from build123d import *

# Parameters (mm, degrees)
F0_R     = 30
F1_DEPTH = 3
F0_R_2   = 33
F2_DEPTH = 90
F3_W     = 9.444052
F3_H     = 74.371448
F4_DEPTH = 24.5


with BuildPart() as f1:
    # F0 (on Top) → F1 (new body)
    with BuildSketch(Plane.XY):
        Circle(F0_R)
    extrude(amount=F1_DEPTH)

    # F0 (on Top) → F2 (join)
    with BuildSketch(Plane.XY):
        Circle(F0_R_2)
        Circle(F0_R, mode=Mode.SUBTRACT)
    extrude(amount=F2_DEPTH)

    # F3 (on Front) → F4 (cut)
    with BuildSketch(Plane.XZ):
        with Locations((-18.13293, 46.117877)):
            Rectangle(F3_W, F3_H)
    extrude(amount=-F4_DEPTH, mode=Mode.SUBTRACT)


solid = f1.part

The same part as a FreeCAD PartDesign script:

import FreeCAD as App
import Part
import Sketcher

V = App.Vector
Q = App.Units.Quantity

doc = App.newDocument("Part")
params = doc.addObject("Spreadsheet::Sheet", "Params")
for row, (alias, value) in enumerate([
    ("sketch1_diameter", "60 mm"),
    ("pad1_length", "3 mm"),
    ("sketch2_diameter", "66 mm"),
    ("sketch2_diameter2", "60 mm"),
    ("pad2_length", "90 mm"),
    ("pocket1_length", "24.5 mm"),
], start=1):
    params.set(f"A{row}", alias)
    params.set(f"B{row}", "=" + value)
    params.setAlias(f"B{row}", alias)

body = doc.addObject("PartDesign::Body", "Body")

# Sketch on XY plane
sketch1 = body.newObject("Sketcher::SketchObject", "Sketch")
sketch1.AttachmentSupport = (doc.getObject("XY_Plane"), [""])
sketch1.MapMode = "FlatFace"
sketch1.addGeometry(Part.Circle(V(0, 0, 0), V(0, 0, 1), 30), False)
sketch1.addConstraint(Sketcher.Constraint("Coincident", 0, 3, -1, 1))
sketch1.addConstraint(Sketcher.Constraint("Diameter", 0, Q("60 mm")))
sketch1.setExpression("Constraints[1]", "Params.sketch1_diameter")
pad1 = body.newObject("PartDesign::Pad", "Pad")
pad1.Profile = sketch1
pad1.setExpression("Length", "Params.pad1_length")

# Sketch on XY plane
sketch2 = body.newObject("Sketcher::SketchObject", "Sketch001")
sketch2.AttachmentSupport = (doc.getObject("XY_Plane"), [""])
sketch2.MapMode = "FlatFace"
sketch2.addGeometry(Part.Circle(V(0, 0, 0), V(0, 0, 1), 33), False)
sketch2.addGeometry(Part.Circle(V(0, 0, 0), V(0, 0, 1), 30), False)
sketch2.addConstraint(Sketcher.Constraint("Coincident", 0, 3, -1, 1))
sketch2.addConstraint(Sketcher.Constraint("Coincident", 1, 3, -1, 1))
sketch2.addConstraint(Sketcher.Constraint("Diameter", 0, Q("66 mm")))
sketch2.addConstraint(Sketcher.Constraint("Diameter", 1, Q("60 mm")))
sketch2.setExpression("Constraints[2]", "Params.sketch2_diameter")
sketch2.setExpression("Constraints[3]", "Params.sketch2_diameter2")
pad2 = body.newObject("PartDesign::Pad", "Pad001")
pad2.Profile = sketch2
pad2.setExpression("Length", "Params.pad2_length")

# Sketch on XZ plane
sketch3 = body.newObject("Sketcher::SketchObject", "Sketch002")
sketch3.AttachmentSupport = (doc.getObject("XZ_Plane"), [""])
sketch3.MapMode = "FlatFace"
sketch3.addGeometry(Part.LineSegment(V(-23, 83, 0), V(-23, 9, 0)), False)
sketch3.addGeometry(Part.LineSegment(V(-23, 9, 0), V(-13, 9, 0)), False)
sketch3.addGeometry(Part.LineSegment(V(-13, 9, 0), V(-13, 83, 0)), False)
sketch3.addGeometry(Part.LineSegment(V(-13, 83, 0), V(-23, 83, 0)), False)
sketch3.addConstraint(Sketcher.Constraint("Coincident", 0, 2, 1, 1))
sketch3.addConstraint(Sketcher.Constraint("Coincident", 1, 2, 2, 1))
sketch3.addConstraint(Sketcher.Constraint("Coincident", 2, 2, 3, 1))
sketch3.addConstraint(Sketcher.Constraint("Coincident", 3, 2, 0, 1))
sketch3.addConstraint(Sketcher.Constraint("Vertical", 0))
sketch3.addConstraint(Sketcher.Constraint("Horizontal", 1))
sketch3.addConstraint(Sketcher.Constraint("Vertical", 2))
sketch3.addConstraint(Sketcher.Constraint("Horizontal", 3))
sketch3.addConstraint(Sketcher.Constraint("DistanceY", 0, 2, 0, 1, Q("74.371448 mm")))
sketch3.addConstraint(Sketcher.Constraint("DistanceY", -1, 1, 2, 2, Q("83.303601 mm")))
sketch3.addConstraint(Sketcher.Constraint("DistanceX", 1, 1, 1, 2, Q("9.444052 mm")))
sketch3.addConstraint(Sketcher.Constraint("DistanceX", 0, 2, -1, 1, Q("22.854956 mm")))
pocket1 = body.newObject("PartDesign::Pocket", "Pocket")
pocket1.Profile = sketch3
pocket1.setExpression("Length", "Params.pocket1_length")

doc.recompute()
